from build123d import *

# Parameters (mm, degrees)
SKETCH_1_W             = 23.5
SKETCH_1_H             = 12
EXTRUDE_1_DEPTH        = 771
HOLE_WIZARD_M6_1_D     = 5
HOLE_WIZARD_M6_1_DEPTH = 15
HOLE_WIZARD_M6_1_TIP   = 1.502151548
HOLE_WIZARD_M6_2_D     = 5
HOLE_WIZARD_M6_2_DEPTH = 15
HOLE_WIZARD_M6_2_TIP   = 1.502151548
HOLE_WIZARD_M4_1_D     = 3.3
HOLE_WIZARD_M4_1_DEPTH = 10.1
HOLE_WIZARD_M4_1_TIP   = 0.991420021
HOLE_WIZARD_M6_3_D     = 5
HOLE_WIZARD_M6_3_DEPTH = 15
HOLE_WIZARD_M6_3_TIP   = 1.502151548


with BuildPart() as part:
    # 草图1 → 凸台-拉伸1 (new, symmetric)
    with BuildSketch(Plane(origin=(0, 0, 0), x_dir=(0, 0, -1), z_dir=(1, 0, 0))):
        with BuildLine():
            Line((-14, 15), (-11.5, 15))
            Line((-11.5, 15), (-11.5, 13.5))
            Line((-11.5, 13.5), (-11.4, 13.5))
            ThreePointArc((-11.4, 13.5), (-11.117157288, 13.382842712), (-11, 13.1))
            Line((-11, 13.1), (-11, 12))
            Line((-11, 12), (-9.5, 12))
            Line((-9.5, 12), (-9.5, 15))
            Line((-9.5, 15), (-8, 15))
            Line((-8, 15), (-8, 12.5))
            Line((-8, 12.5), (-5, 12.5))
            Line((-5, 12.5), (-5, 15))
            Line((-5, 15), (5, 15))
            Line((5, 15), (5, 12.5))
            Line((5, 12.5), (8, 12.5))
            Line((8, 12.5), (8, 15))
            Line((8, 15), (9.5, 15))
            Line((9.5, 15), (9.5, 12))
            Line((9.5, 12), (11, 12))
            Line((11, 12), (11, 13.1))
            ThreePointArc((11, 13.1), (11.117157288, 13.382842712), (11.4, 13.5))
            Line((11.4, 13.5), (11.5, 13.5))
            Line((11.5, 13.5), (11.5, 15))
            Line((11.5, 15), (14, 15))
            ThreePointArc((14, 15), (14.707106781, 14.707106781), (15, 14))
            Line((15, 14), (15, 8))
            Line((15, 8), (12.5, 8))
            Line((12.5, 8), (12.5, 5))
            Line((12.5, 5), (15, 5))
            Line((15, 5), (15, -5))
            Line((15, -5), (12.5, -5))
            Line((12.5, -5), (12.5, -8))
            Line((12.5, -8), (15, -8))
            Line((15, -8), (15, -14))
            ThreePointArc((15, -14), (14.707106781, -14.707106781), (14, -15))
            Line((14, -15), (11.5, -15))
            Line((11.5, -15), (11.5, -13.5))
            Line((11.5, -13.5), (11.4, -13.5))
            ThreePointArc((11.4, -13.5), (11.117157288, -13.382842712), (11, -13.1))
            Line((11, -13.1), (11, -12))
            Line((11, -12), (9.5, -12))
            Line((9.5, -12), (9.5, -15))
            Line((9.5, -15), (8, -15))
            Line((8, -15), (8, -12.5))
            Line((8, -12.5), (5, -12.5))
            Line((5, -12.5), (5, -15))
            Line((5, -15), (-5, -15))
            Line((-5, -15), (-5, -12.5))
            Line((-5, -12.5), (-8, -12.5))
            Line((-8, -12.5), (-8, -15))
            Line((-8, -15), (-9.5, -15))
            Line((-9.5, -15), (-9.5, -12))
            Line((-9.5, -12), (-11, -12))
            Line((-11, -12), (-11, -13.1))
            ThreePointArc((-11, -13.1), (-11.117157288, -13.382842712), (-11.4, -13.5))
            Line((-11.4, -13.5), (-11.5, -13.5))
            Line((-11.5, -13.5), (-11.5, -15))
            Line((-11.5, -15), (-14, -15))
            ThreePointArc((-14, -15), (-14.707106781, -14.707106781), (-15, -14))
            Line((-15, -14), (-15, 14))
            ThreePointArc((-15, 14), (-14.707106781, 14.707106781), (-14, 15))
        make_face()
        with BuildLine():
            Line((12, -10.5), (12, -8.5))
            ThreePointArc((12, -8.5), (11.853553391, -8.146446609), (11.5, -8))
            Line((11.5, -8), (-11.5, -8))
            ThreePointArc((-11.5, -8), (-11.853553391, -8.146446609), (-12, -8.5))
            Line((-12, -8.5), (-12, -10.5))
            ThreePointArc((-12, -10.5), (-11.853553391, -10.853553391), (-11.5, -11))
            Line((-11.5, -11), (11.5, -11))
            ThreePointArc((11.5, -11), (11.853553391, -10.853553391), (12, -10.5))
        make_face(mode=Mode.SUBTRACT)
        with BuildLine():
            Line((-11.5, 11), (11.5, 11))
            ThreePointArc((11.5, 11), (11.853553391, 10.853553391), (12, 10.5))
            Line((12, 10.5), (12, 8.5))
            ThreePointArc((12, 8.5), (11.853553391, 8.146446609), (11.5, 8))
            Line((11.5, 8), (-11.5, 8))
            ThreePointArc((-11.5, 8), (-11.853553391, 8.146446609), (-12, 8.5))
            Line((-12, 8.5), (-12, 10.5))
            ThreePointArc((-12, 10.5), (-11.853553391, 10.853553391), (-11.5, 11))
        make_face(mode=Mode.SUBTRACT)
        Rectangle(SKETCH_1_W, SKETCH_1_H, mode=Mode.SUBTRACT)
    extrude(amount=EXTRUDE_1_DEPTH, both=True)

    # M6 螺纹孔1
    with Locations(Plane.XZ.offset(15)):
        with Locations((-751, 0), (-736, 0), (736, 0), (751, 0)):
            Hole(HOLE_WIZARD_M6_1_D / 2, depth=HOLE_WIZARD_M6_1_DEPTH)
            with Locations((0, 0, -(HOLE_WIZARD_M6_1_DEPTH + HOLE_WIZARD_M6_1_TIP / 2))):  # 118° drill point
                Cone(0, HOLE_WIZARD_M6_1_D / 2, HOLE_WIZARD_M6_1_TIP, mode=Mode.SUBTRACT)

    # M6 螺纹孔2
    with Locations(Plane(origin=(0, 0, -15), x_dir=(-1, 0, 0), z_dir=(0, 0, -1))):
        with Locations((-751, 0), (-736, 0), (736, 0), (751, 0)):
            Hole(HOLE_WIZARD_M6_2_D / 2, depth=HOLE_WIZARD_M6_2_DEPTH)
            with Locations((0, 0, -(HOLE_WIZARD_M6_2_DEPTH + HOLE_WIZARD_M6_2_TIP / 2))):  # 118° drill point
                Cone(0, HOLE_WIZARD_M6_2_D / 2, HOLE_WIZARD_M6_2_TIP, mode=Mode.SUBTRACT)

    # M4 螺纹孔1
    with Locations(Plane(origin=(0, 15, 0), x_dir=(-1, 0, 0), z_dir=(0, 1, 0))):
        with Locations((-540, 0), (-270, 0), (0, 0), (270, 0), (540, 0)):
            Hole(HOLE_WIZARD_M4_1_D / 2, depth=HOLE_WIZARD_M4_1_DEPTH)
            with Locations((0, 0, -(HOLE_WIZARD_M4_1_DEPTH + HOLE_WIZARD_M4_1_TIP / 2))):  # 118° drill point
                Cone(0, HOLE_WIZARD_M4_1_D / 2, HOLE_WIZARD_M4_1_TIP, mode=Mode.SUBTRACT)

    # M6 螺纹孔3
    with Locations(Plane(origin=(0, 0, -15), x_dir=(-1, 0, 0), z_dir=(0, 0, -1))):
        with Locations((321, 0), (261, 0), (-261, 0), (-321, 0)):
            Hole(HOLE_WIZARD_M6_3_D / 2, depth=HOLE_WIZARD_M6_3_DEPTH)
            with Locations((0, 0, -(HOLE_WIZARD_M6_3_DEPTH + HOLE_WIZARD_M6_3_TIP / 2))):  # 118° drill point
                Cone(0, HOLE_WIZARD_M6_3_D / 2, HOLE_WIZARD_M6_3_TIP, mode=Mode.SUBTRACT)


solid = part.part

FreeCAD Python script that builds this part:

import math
import FreeCAD as App
import Part
import Sketcher
from FreeCAD import Vector


def add_polygon(sketch, points):
    """Adds a closed chain of lines whose ends are joined by coincident constraints."""
    first, n = sketch.GeometryCount, len(points)
    for a, b in zip(points, points[1:] + points[:1]):
        sketch.addGeometry(Part.LineSegment(App.Vector(*a, 0), App.Vector(*b, 0)), False)
    for i in range(n):
        sketch.addConstraint(Sketcher.Constraint("Coincident", first + i, 2, first + (i + 1) % n, 1))

doc = App.newDocument("Part")
params = doc.addObject("Spreadsheet::Sheet", "Params")
for row, (alias, value) in enumerate([
    ("sketch1_radius", "1 mm"),
    ("sketch1_radius2", "0.4 mm"),
    ("sketch1_radius3", "0.5 mm"),
    ("sketch1_width", "28 mm"),
    ("sketch1_width2", "3 mm"),
    ("pad1_length", "1542 mm"),
    ("sketch2_diameter", "5 mm"),
    ("hole_diameter", "5 mm"),
    ("hole_depth", "15 mm"),
    ("sketch3_diameter", "5 mm"),
    ("hole2_diameter", "5 mm"),
    ("hole2_depth", "15 mm"),
    ("sketch4_diameter", "3.3 mm"),
    ("hole3_diameter", "3.3 mm"),
    ("hole3_depth", "10.1 mm"),
    ("sketch5_diameter", "5 mm"),
    ("hole4_diameter", "5 mm"),
    ("hole4_depth", "15 mm"),
], start=1):
    params.set(f"A{row}", alias)
    params.set(f"B{row}", "=" + value)
    params.setAlias(f"B{row}", alias)

body = doc.addObject("PartDesign::Body", "Body")

# Sketch on YZ plane
sketch1 = doc.addObject("Sketcher::SketchObject", "Sketch")
body.addObject(sketch1)
sketch1.AttachmentSupport = (doc.YZ_Plane, [""])
sketch1.MapMode = "FlatFace"
sketch1.addGeometry(Part.LineSegment(Vector(15, 11.5, 0), Vector(15, 14, 0)), False)  # 0
sketch1.addGeometry(Part.ArcOfCircle(Part.Circle(Vector(14, 14, 0), Vector(0, 0, 1), 1), math.radians(0), math.radians(90)), False)  # 1
sketch1.addGeometry(Part.LineSegment(Vector(14, 15, 0), Vector(-14, 15, 0)), False)  # 2
sketch1.addGeometry(Part.ArcOfCircle(Part.Circle(Vector(-14, 14, 0), Vector(0, 0, 1), 1), math.radians(90), math.radians(180)), False)  # 3
sketch1.addGeometry(Part.LineSegment(Vector(-15, 14, 0), Vector(-15, 11.5, 0)), False)  # 4
sketch1.addGeometry(Part.LineSegment(Vector(-15, 11.5, 0), Vector(-13.5, 11.5, 0)), False)  # 5
sketch1.addGeometry(Part.LineSegment(Vector(-13.5, 11.5, 0), Vector(-13.5, 11.4, 0)), False)  # 6
sketch1.addGeometry(Part.ArcOfCircle(Part.Circle(Vector(-13.1, 11.4, 0), Vector(0, 0, 1), 0.4), math.radians(-180), math.radians(-90)), False)  # 7
sketch1.addGeometry(Part.LineSegment(Vector(-13.1, 11, 0), Vector(-12, 11, 0)), False)  # 8
sketch1.addGeometry(Part.LineSegment(Vector(-12, 11, 0), Vector(-12, 9.5, 0)), False)  # 9
sketch1.addGeometry(Part.LineSegment(Vector(-12, 9.5, 0), Vector(-15, 9.5, 0)), False)  # 10
sketch1.addGeometry(Part.LineSegment(Vector(-15, 9.5, 0), Vector(-15, 8, 0)), False)  # 11
sketch1.addGeometry(Part.LineSegment(Vector(-15, 8, 0), Vector(-12.5, 8, 0)), False)  # 12
sketch1.addGeometry(Part.LineSegment(Vector(-12.5, 8, 0), Vector(-12.5, 5, 0)), False)  # 13
sketch1.addGeometry(Part.LineSegment(Vector(-12.5, 5, 0), Vector(-15, 5, 0)), False)  # 14
sketch1.addGeometry(Part.LineSegment(Vector(-15, 5, 0), Vector(-15, -5, 0)), False)  # 15
sketch1.addGeometry(Part.LineSegment(Vector(-15, -5, 0), Vector(-12.5, -5, 0)), False)  # 16
sketch1.addGeometry(Part.LineSegment(Vector(-12.5, -5, 0), Vector(-12.5, -8, 0)), False)  # 17
sketch1.addGeometry(Part.LineSegment(Vector(-12.5, -8, 0), Vector(-15, -8, 0)), False)  # 18
sketch1.addGeometry(Part.LineSegment(Vector(-15, -8, 0), Vector(-15, -9.5, 0)), False)  # 19
sketch1.addGeometry(Part.LineSegment(Vector(-15, -9.5, 0), Vector(-12, -9.5, 0)), False)  # 20
sketch1.addGeometry(Part.LineSegment(Vector(-12, -9.5, 0), Vector(-12, -11, 0)), False)  # 21
sketch1.addGeometry(Part.LineSegment(Vector(-12, -11, 0), Vector(-13.1, -11, 0)), False)  # 22
sketch1.addGeometry(Part.ArcOfCircle(Part.Circle(Vector(-13.1, -11.4, 0), Vector(0, 0, 1), 0.4), math.radians(90), math.radians(180)), False)  # 23
sketch1.addGeometry(Part.LineSegment(Vector(-13.5, -11.4, 0), Vector(-13.5, -11.5, 0)), False)  # 24
sketch1.addGeometry(Part.LineSegment(Vector(-13.5, -11.5, 0), Vector(-15, -11.5, 0)), False)  # 25
sketch1.addGeometry(Part.LineSegment(Vector(-15, -11.5, 0), Vector(-15, -14, 0)), False)  # 26
sketch1.addGeometry(Part.ArcOfCircle(Part.Circle(Vector(-14, -14, 0), Vector(0, 0, 1), 1), math.radians(-180), math.radians(-90)), False)  # 27
sketch1.addGeometry(Part.LineSegment(Vector(-14, -15, 0), Vector(-8, -15, 0)), False)  # 28
sketch1.addGeometry(Part.LineSegment(Vector(-8, -15, 0), Vector(-8, -12.5, 0)), False)  # 29
sketch1.addGeometry(Part.LineSegment(Vector(-8, -12.5, 0), Vector(-5, -12.5, 0)), False)  # 30
sketch1.addGeometry(Part.LineSegment(Vector(-5, -12.5, 0), Vector(-5, -15, 0)), False)  # 31
sketch1.addGeometry(Part.LineSegment(Vector(-5, -15, 0), Vector(5, -15, 0)), False)  # 32
sketch1.addGeometry(Part.LineSegment(Vector(5, -15, 0), Vector(5, -12.5, 0)), False)  # 33
sketch1.addGeometry(Part.LineSegment(Vector(5, -12.5, 0), Vector(8, -12.5, 0)), False)  # 34
sketch1.addGeometry(Part.LineSegment(Vector(8, -12.5, 0), Vector(8, -15, 0)), False)  # 35
sketch1.addGeometry(Part.LineSegment(Vector(8, -15, 0), Vector(14, -15, 0)), False)  # 36
sketch1.addGeometry(Part.ArcOfCircle(Part.Circle(Vector(14, -14, 0), Vector(0, 0, 1), 1), math.radians(-90), math.radians(0)), False)  # 37
sketch1.addGeometry(Part.LineSegment(Vector(15, -14, 0), Vector(15, -11.5, 0)), False)  # 38
sketch1.addGeometry(Part.LineSegment(Vector(15, -11.5, 0), Vector(13.5, -11.5, 0)), False)  # 39
sketch1.addGeometry(Part.LineSegment(Vector(13.5, -11.5, 0), Vector(13.5, -11.4, 0)), False)  # 40
sketch1.addGeometry(Part.ArcOfCircle(Part.Circle(Vector(13.1, -11.4, 0), Vector(0, 0, 1), 0.4), math.radians(0), math.radians(90)), False)  # 41
sketch1.addGeometry(Part.LineSegment(Vector(13.1, -11, 0), Vector(12, -11, 0)), False)  # 42
sketch1.addGeometry(Part.LineSegment(Vector(12, -11, 0), Vector(12, -9.5, 0)), False)  # 43
sketch1.addGeometry(Part.LineSegment(Vector(12, -9.5, 0), Vector(15, -9.5, 0)), False)  # 44
sketch1.addGeometry(Part.LineSegment(Vector(15, -9.5, 0), Vector(15, -8, 0)), False)  # 45
sketch1.addGeometry(Part.LineSegment(Vector(15, -8, 0), Vector(12.5, -8, 0)), False)  # 46
sketch1.addGeometry(Part.LineSegment(Vector(12.5, -8, 0), Vector(12.5, -5, 0)), False)  # 47
sketch1.addGeometry(Part.LineSegment(Vector(12.5, -5, 0), Vector(15, -5, 0)), False)  # 48
sketch1.addGeometry(Part.LineSegment(Vector(15, -5, 0), Vector(15, 5, 0)), False)  # 49
sketch1.addGeometry(Part.LineSegment(Vector(15, 5, 0), Vector(12.5, 5, 0)), False)  # 50
sketch1.addGeometry(Part.LineSegment(Vector(12.5, 5, 0), Vector(12.5, 8, 0)), False)  # 51
sketch1.addGeometry(Part.LineSegment(Vector(12.5, 8, 0), Vector(15, 8, 0)), False)  # 52
sketch1.addGeometry(Part.LineSegment(Vector(15, 8, 0), Vector(15, 9.5, 0)), False)  # 53
sketch1.addGeometry(Part.LineSegment(Vector(15, 9.5, 0), Vector(12, 9.5, 0)), False)  # 54
sketch1.addGeometry(Part.LineSegment(Vector(12, 9.5, 0), Vector(12, 11, 0)), False)  # 55
sketch1.addGeometry(Part.LineSegment(Vector(12, 11, 0), Vector(13.1, 11, 0)), False)  # 56
sketch1.addGeometry(Part.ArcOfCircle(Part.Circle(Vector(13.1, 11.4, 0), Vector(0, 0, 1), 0.4), math.radians(-90), math.radians(0)), False)  # 57
sketch1.addGeometry(Part.LineSegment(Vector(13.5, 11.4, 0), Vector(13.5, 11.5, 0)), False)  # 58
sketch1.addGeometry(Part.LineSegment(Vector(13.5, 11.5, 0), Vector(15, 11.5, 0)), False)  # 59
sketch1.addGeometry(Part.ArcOfCircle(Part.Circle(Vector(-10.5, -11.5, 0), Vector(0, 0, 1), 0.5), math.radians(180), math.radians(270)), False)  # 60
sketch1.addGeometry(Part.LineSegment(Vector(-11, -11.5, 0), Vector(-11, 11.5, 0)), False)  # 61
sketch1.addGeometry(Part.ArcOfCircle(Part.Circle(Vector(-10.5, 11.5, 0), Vector(0, 0, 1), 0.5), math.radians(90), math.radians(180)), False)  # 62
sketch1.addGeometry(Part.LineSegment(Vector(-10.5, 12, 0), Vector(-8.5, 12, 0)), False)  # 63
sketch1.addGeometry(Part.ArcOfCircle(Part.Circle(Vector(-8.5, 11.5, 0), Vector(0, 0, 1), 0.5), math.radians(0), math.radians(90)), False)  # 64
sketch1.addGeometry(Part.LineSegment(Vector(-8, 11.5, 0), Vector(-8, -11.5, 0)), False)  # 65
sketch1.addGeometry(Part.ArcOfCircle(Part.Circle(Vector(-8.5, -11.5, 0), Vector(0, 0, 1), 0.5), math.radians(-90), math.radians(0)), False)  # 66
sketch1.addGeometry(Part.LineSegment(Vector(-8.5, -12, 0), Vector(-10.5, -12, 0)), False)  # 67
add_polygon(sketch1, [(-6, 11.75), (6, 11.75), (6, -11.75), (-6, -11.75)])  # lines 68-71
sketch1.addGeometry(Part.LineSegment(Vector(11, 11.5, 0), Vector(11, -11.5, 0)), False)  # 72
sketch1.addGeometry(Part.ArcOfCircle(Part.Circle(Vector(10.5, -11.5, 0), Vector(0, 0, 1), 0.5), math.radians(-90), math.radians(0)), False)  # 73
sketch1.addGeometry(Part.LineSegment(Vector(10.5, -12, 0), Vector(8.5, -12, 0)), False)  # 74
sketch1.addGeometry(Part.ArcOfCircle(Part.Circle(Vector(8.5, -11.5, 0), Vector(0, 0, 1), 0.5), math.radians(180), math.radians(270)), False)  # 75
sketch1.addGeometry(Part.LineSegment(Vector(8, -11.5, 0), Vector(8, 11.5, 0)), False)  # 76
sketch1.addGeometry(Part.ArcOfCircle(Part.Circle(Vector(8.5, 11.5, 0), Vector(0, 0, 1), 0.5), math.radians(90), math.radians(180)), False)  # 77
sketch1.addGeometry(Part.LineSegment(Vector(8.5, 12, 0), Vector(10.5, 12, 0)), False)  # 78
sketch1.addGeometry(Part.ArcOfCircle(Part.Circle(Vector(10.5, 11.5, 0), Vector(0, 0, 1), 0.5), math.radians(0), math.radians(90)), False)  # 79
sketch1.addConstraint([
    Sketcher.Constraint("Tangent", 0, 2, 1, 1),
    Sketcher.Constraint("Tangent", 1, 2, 2, 1),
    Sketcher.Constraint("Tangent", 2, 2, 3, 1),
    Sketcher.Constraint("Tangent", 3, 2, 4, 1),
    Sketcher.Constraint("Coincident", 4, 2, 5, 1),
    Sketcher.Constraint("Coincident", 5, 2, 6, 1),
    Sketcher.Constraint("Tangent", 6, 2, 7, 1),
    Sketcher.Constraint("Tangent", 7, 2, 8, 1),
    Sketcher.Constraint("Coincident", 8, 2, 9, 1),
    Sketcher.Constraint("Coincident", 9, 2, 10, 1),
    Sketcher.Constraint("Coincident", 10, 2, 11, 1),
    Sketcher.Constraint("Coincident", 11, 2, 12, 1),
    Sketcher.Constraint("Coincident", 12, 2, 13, 1),
    Sketcher.Constraint("Coincident", 13, 2, 14, 1),
    Sketcher.Constraint("Coincident", 14, 2, 15, 1),
    Sketcher.Constraint("Coincident", 15, 2, 16, 1),
    Sketcher.Constraint("Coincident", 16, 2, 17, 1),
    Sketcher.Constraint("Coincident", 17, 2, 18, 1),
    Sketcher.Constraint("Coincident", 18, 2, 19, 1),
    Sketcher.Constraint("Coincident", 19, 2, 20, 1),
    Sketcher.Constraint("Coincident", 20, 2, 21, 1),
    Sketcher.Constraint("Coincident", 21, 2, 22, 1),
    Sketcher.Constraint("Tangent", 22, 2, 23, 1),
    Sketcher.Constraint("Tangent", 23, 2, 24, 1),
    Sketcher.Constraint("Coincident", 24, 2, 25, 1),
    Sketcher.Constraint("Coincident", 25, 2, 26, 1),
    Sketcher.Constraint("Tangent", 26, 2, 27, 1),
    Sketcher.Constraint("Tangent", 27, 2, 28, 1),
    Sketcher.Constraint("Coincident", 28, 2, 29, 1),
    Sketcher.Constraint("Coincident", 29, 2, 30, 1),
    Sketcher.Constraint("Coincident", 30, 2, 31, 1),
    Sketcher.Constraint("Coincident", 31, 2, 32, 1),
    Sketcher.Constraint("Coincident", 32, 2, 33, 1),
    Sketcher.Constraint("Coincident", 33, 2, 34, 1),
    Sketcher.Constraint("Coincident", 34, 2, 35, 1),
    Sketcher.Constraint("Coincident", 35, 2, 36, 1),
    Sketcher.Constraint("Tangent", 36, 2, 37, 1),
    Sketcher.Constraint("Tangent", 37, 2, 38, 1),
    Sketcher.Constraint("Coincident", 38, 2, 39, 1),
    Sketcher.Constraint("Coincident", 39, 2, 40, 1),
    Sketcher.Constraint("Tangent", 40, 2, 41, 1),
    Sketcher.Constraint("Tangent", 41, 2, 42, 1),
    Sketcher.Constraint("Coincident", 42, 2, 43, 1),
    Sketcher.Constraint("Coincident", 43, 2, 44, 1),
    Sketcher.Constraint("Coincident", 44, 2, 45, 1),
    Sketcher.Constraint("Coincident", 45, 2, 46, 1),
    Sketcher.Constraint("Coincident", 46, 2, 47, 1),
    Sketcher.Constraint("Coincident", 47, 2, 48, 1),
    Sketcher.Constraint("Coincident", 48, 2, 49, 1),
    Sketcher.Constraint("Coincident", 49, 2, 50, 1),
    Sketcher.Constraint("Coincident", 50, 2, 51, 1),
    Sketcher.Constraint("Coincident", 51, 2, 52, 1),
    Sketcher.Constraint("Coincident", 52, 2, 53, 1),
    Sketcher.Constraint("Coincident", 53, 2, 54, 1),
    Sketcher.Constraint("Coincident", 54, 2, 55, 1),
    Sketcher.Constraint("Coincident", 55, 2, 56, 1),
    Sketcher.Constraint("Tangent", 56, 2, 57, 1),
    Sketcher.Constraint("Tangent", 57, 2, 58, 1),
    Sketcher.Constraint("Coincident", 58, 2, 59, 1),
    Sketcher.Constraint("Coincident", 59, 2, 0, 1),
    Sketcher.Constraint("Tangent", 60, 1, 61, 1),
    Sketcher.Constraint("Tangent", 61, 2, 62, 2),
    Sketcher.Constraint("Tangent", 62, 1, 63, 1),
    Sketcher.Constraint("Tangent", 63, 2, 64, 2),
    Sketcher.Constraint("Tangent", 64, 1, 65, 1),
    Sketcher.Constraint("Tangent", 65, 2, 66, 2),
    Sketcher.Constraint("Tangent", 66, 1, 67, 1),
    Sketcher.Constraint("Tangent", 67, 2, 60, 2),
    Sketcher.Constraint("Tangent", 72, 2, 73, 2),
    Sketcher.Constraint("Tangent", 73, 1, 74, 1),
    Sketcher.Constraint("Tangent", 74, 2, 75, 2),
    Sketcher.Constraint("Tangent", 75, 1, 76, 1),
    Sketcher.Constraint("Tangent", 76, 2, 77, 2),
    Sketcher.Constraint("Tangent", 77, 1, 78, 1),
    Sketcher.Constraint("Tangent", 78, 2, 79, 2),
    Sketcher.Constraint("Tangent", 79, 1, 72, 1),
    Sketcher.Constraint("Vertical", 0),
    Sketcher.Constraint("Horizontal", 2),
    Sketcher.Constraint("Vertical", 4),
    Sketcher.Constraint("Horizontal", 5),
    Sketcher.Constraint("Vertical", 6),
    Sketcher.Constraint("Horizontal", 8),
    Sketcher.Constraint("Vertical", 9),
    Sketcher.Constraint("Horizontal", 10),
    Sketcher.Constraint("Vertical", 11),
    Sketcher.Constraint("Horizontal", 12),
    Sketcher.Constraint("Vertical", 13),
    Sketcher.Constraint("Horizontal", 14),
    Sketcher.Constraint("Vertical", 15),
    Sketcher.Constraint("Horizontal", 16),
    Sketcher.Constraint("Vertical", 17),
    Sketcher.Constraint("Horizontal", 18),
    Sketcher.Constraint("Vertical", 19),
    Sketcher.Constraint("Horizontal", 20),
    Sketcher.Constraint("Vertical", 21),
    Sketcher.Constraint("Horizontal", 22),
    Sketcher.Constraint("Vertical", 24),
    Sketcher.Constraint("Horizontal", 25),
    Sketcher.Constraint("Vertical", 26),
    Sketcher.Constraint("Horizontal", 28),
    Sketcher.Constraint("Vertical", 29),
    Sketcher.Constraint("Horizontal", 30),
    Sketcher.Constraint("Vertical", 31),
    Sketcher.Constraint("Horizontal", 32),
    Sketcher.Constraint("Vertical", 33),
    Sketcher.Constraint("Horizontal", 34),
    Sketcher.Constraint("Vertical", 35),
    Sketcher.Constraint("Horizontal", 36),
    Sketcher.Constraint("Vertical", 38),
    Sketcher.Constraint("Horizontal", 39),
    Sketcher.Constraint("Vertical", 40),
    Sketcher.Constraint("Horizontal", 42),
    Sketcher.Constraint("Vertical", 43),
    Sketcher.Constraint("Horizontal", 44),
    Sketcher.Constraint("Vertical", 45),
    Sketcher.Constraint("Horizontal", 46),
    Sketcher.Constraint("Vertical", 47),
    Sketcher.Constraint("Horizontal", 48),
    Sketcher.Constraint("Vertical", 49),
    Sketcher.Constraint("Horizontal", 50),
    Sketcher.Constraint("Vertical", 51),
    Sketcher.Constraint("Horizontal", 52),
    Sketcher.Constraint("Vertical", 53),
    Sketcher.Constraint("Horizontal", 54),
    Sketcher.Constraint("Vertical", 55),
    Sketcher.Constraint("Horizontal", 56),
    Sketcher.Constraint("Vertical", 58),
    Sketcher.Constraint("Horizontal", 59),
    Sketcher.Constraint("Vertical", 61),
    Sketcher.Constraint("Horizontal", 63),
    Sketcher.Constraint("Vertical", 65),
    Sketcher.Constraint("Horizontal", 67),
    Sketcher.Constraint("Horizontal", 68),
    Sketcher.Constraint("Vertical", 69),
    Sketcher.Constraint("Horizontal", 70),
    Sketcher.Constraint("Vertical", 71),
    Sketcher.Constraint("Vertical", 72),
    Sketcher.Constraint("Horizontal", 74),
    Sketcher.Constraint("Vertical", 76),
    Sketcher.Constraint("Horizontal", 78),
    Sketcher.Constraint("Equal", 1, 3),
    Sketcher.Constraint("Equal", 7, 23),
    Sketcher.Constraint("Equal", 3, 27),
    Sketcher.Constraint("Equal", 27, 37),
    Sketcher.Constraint("Equal", 23, 41),
    Sketcher.Constraint("Equal", 41, 57),
    Sketcher.Constraint("Equal", 60, 62),
    Sketcher.Constraint("Equal", 62, 64),
    Sketcher.Constraint("Equal", 64, 66),
    Sketcher.Constraint("Equal", 66, 73),
    Sketcher.Constraint("Equal", 73, 75),
    Sketcher.Constraint("Equal", 75, 77),
    Sketcher.Constraint("Equal", 77, 79),
    Sketcher.Constraint("Symmetric", 1, 3, 27, 3, -1, 1),
    Sketcher.Constraint("Symmetric", 3, 3, 37, 3, -1, 1),
    Sketcher.Constraint("Symmetric", 7, 3, 41, 3, -1, 1),
    Sketcher.Constraint("Symmetric", 23, 3, 57, 3, -1, 1),
    Sketcher.Constraint("Symmetric", 62, 3, 73, 3, -1, 1),
    Sketcher.Constraint("Symmetric", 66, 3, 77, 3, -1, 1),
    Sketcher.Constraint("Symmetric", 9, 2, 43, 2, -1, 1),
    Sketcher.Constraint("Symmetric", 11, 2, 45, 2, -1, 1),
    Sketcher.Constraint("Symmetric", 13, 2, 47, 2, -1, 1),
    Sketcher.Constraint("Symmetric", 15, 2, 49, 2, -1, 1),
    Sketcher.Constraint("Symmetric", 17, 2, 51, 2, -1, 1),
    Sketcher.Constraint("Symmetric", 19, 2, 53, 2, -1, 1),
    Sketcher.Constraint("Symmetric", 68, 2, 70, 2, -1, 1),
    Sketcher.Constraint("Symmetric", 23, 3, 41, 3, -2),
    Sketcher.Constraint("Symmetric", 30, 2, 33, 2, -2),
    Sketcher.Constraint("Symmetric", 25, 2, 38, 2, -2),
    Sketcher.Constraint("Symmetric", 20, 2, 43, 2, -2),
    Sketcher.Constraint("Symmetric", 18, 2, 45, 2, -2),
    Sketcher.Constraint("Symmetric", 16, 2, 47, 2, -2),
    Sketcher.Constraint("Horizontal", 66, 3, 73, 3),
    Sketcher.Constraint("Horizontal", 79, 3, 4, 2),
    Sketcher.Constraint("Horizontal", 75, 3, 24, 2),
    Sketcher.Constraint("Horizontal", 28, 2, 31, 2),
    Sketcher.Constraint("Horizontal", 5, 2, 58, 2),
    Sketcher.Constraint("Vertical", 4, 2, 10, 2),
    Sketcher.Constraint("Vertical", 11, 2, 14, 2),
    Sketcher.Constraint("Vertical", 43, 2, 54, 2),
    Sketcher.Constraint("Vertical", 29, 2, 64, 1),
    Sketcher.Constraint("Vertical", 35, 2, 75, 1),
    Sketcher.Constraint("Equal", 20, 30),
    Sketcher.Constraint("Equal", 52, 0),
    Sketcher.Constraint("Equal", 59, 9),
    Sketcher.Constraint("Equal", 9, 11),
    Sketcher.Constraint("Equal", 54, 13),
    Sketcher.Constraint("Equal", 32, 15),
    Sketcher.Constraint("Equal", 26, 29),
    Sketcher.Constraint("Radius", 1, 1.0),
    Sketcher.Constraint("Radius", 7, 0.4),
    Sketcher.Constraint("Radius", 60, 0.5),
    Sketcher.Constraint("DistanceX", 2, 2, 2, 1, 28.0),
    Sketcher.Constraint("DistanceX", 10, 2, 10, 1, 3.0),
    Sketcher.Constraint("DistanceX", 28, 1, 28, 2, 6.0),
    Sketcher.Constraint("DistanceX", 63, 1, 63, 2, 2.0),
    Sketcher.Constraint("DistanceX", 68, 1, 68, 2, 12.0),
    Sketcher.Constraint("DistanceY", 61, 1, 61, 2, 23.0),
    Sketcher.Constraint("DistanceX", 5, 1, 5, 2, 1.5),
    Sketcher.Constraint("DistanceX", 12, 1, 12, 2, 2.5),
    Sketcher.Constraint("DistanceY", 69, 2, 69, 1, 23.5),
])
sketch1.setExpression("Constraints[193]", "Params.sketch1_radius")
sketch1.setExpression("Constraints[194]", "Params.sketch1_radius2")
sketch1.setExpression("Constraints[195]", "Params.sketch1_radius3")
sketch1.setExpression("Constraints[196]", "Params.sketch1_width")
sketch1.setExpression("Constraints[197]", "Params.sketch1_width2")
pad1 = doc.addObject("PartDesign::Pad", "Pad")
body.addObject(pad1)
pad1.Profile = sketch1
pad1.setExpression("Length", "Params.pad1_length")
pad1.Midplane = True

# Sketch on XZ plane
sketch2 = doc.addObject("Sketcher::SketchObject", "Sketch001")
body.addObject(sketch2)
sketch2.AttachmentSupport = (doc.XZ_Plane, [""])
sketch2.MapMode = "FlatFace"
sketch2.AttachmentOffset = App.Placement(Vector(0, 0, 15), App.Rotation())
sketch2.addGeometry([
    Part.Circle(Vector(-751, 0, 0), Vector(0, 0, 1), 2.5),
    Part.Circle(Vector(-736, 0, 0), Vector(0, 0, 1), 2.5),
    Part.Circle(Vector(736, 0, 0), Vector(0, 0, 1), 2.5),
    Part.Circle(Vector(751, 0, 0), Vector(0, 0, 1), 2.5),
], False)
sketch2.addConstraint([
    Sketcher.Constraint("Equal", 0, 1),
    Sketcher.Constraint("Equal", 1, 2),
    Sketcher.Constraint("Equal", 2, 3),
    Sketcher.Constraint("Symmetric", 1, 3, 2, 3, -1, 1),
    Sketcher.Constraint("Symmetric", 0, 3, 3, 3, -1, 1),
    Sketcher.Constraint("PointOnObject", 0, 3, -1),
    Sketcher.Constraint("PointOnObject", 1, 3, -1),
    Sketcher.Constraint("Diameter", 0, 5.0),
    Sketcher.Constraint("DistanceX", 0, 3, -1, 1, 751.0),
    Sketcher.Constraint("DistanceX", 1, 3, -1, 1, 736.0),
])
sketch2.setExpression("Constraints[7]", "Params.sketch2_diameter")
doc.recompute()
hole = doc.addObject("PartDesign::Hole", "Hole")
body.addObject(hole)
hole.Profile = sketch2
hole.ThreadType = "None"
hole.setExpression("Diameter", "Params.hole_diameter")
hole.DepthType = "Dimension"
hole.setExpression("Depth", "Params.hole_depth")
hole.DrillPoint = "Angled"
hole.DrillPointAngle = 118

# Sketch on XY plane
sketch3 = doc.addObject("Sketcher::SketchObject", "Sketch002")
body.addObject(sketch3)
sketch3.AttachmentSupport = (doc.XY_Plane, [""])
sketch3.MapMode = "FlatFace"
sketch3.AttachmentOffset = App.Placement(Vector(0, 0, -15), App.Rotation())
sketch3.addGeometry([
    Part.Circle(Vector(751, 0, 0), Vector(0, 0, 1), 2.5),
    Part.Circle(Vector(736, 0, 0), Vector(0, 0, 1), 2.5),
    Part.Circle(Vector(-736, 0, 0), Vector(0, 0, 1), 2.5),
    Part.Circle(Vector(-751, 0, 0), Vector(0, 0, 1), 2.5),
], False)
sketch3.addConstraint([
    Sketcher.Constraint("Equal", 0, 1),
    Sketcher.Constraint("Equal", 1, 2),
    Sketcher.Constraint("Equal", 2, 3),
    Sketcher.Constraint("Symmetric", 1, 3, 2, 3, -1, 1),
    Sketcher.Constraint("Symmetric", 0, 3, 3, 3, -1, 1),
    Sketcher.Constraint("PointOnObject", 0, 3, -1),
    Sketcher.Constraint("PointOnObject", 1, 3, -1),
    Sketcher.Constraint("Diameter", 0, 5.0),
    Sketcher.Constraint("DistanceX", -1, 1, 0, 3, 751.0),
    Sketcher.Constraint("DistanceX", -1, 1, 1, 3, 736.0),
])
sketch3.setExpression("Constraints[7]", "Params.sketch3_diameter")
doc.recompute()
hole2 = doc.addObject("PartDesign::Hole", "Hole001")
body.addObject(hole2)
hole2.Profile = sketch3
hole2.ThreadType = "None"
hole2.setExpression("Diameter", "Params.hole2_diameter")
hole2.DepthType = "Dimension"
hole2.setExpression("Depth", "Params.hole2_depth")
hole2.DrillPoint = "Angled"
hole2.DrillPointAngle = 118
hole2.Reversed = True

# Sketch on XZ plane
sketch4 = doc.addObject("Sketcher::SketchObject", "Sketch003")
body.addObject(sketch4)
sketch4.AttachmentSupport = (doc.XZ_Plane, [""])
sketch4.MapMode = "FlatFace"
sketch4.AttachmentOffset = App.Placement(Vector(0, 0, -15), App.Rotation())
sketch4.addGeometry([
    Part.Circle(Vector(540, 0, 0), Vector(0, 0, 1), 1.65),  # 0
    Part.Circle(Vector(270, 0, 0), Vector(0, 0, 1), 1.65),  # 1
    Part.Circle(Vector(0, 0, 0), Vector(0, 0, 1), 1.65),  # 2
    Part.Circle(Vector(-270, 0, 0), Vector(0, 0, 1), 1.65),  # 3
    Part.Circle(Vector(-540, 0, 0), Vector(0, 0, 1), 1.65),  # 4
], False)
sketch4.addConstraint([
    Sketcher.Constraint("Coincident", 2, 3, -1, 1),
    Sketcher.Constraint("Equal", 0, 1),
    Sketcher.Constraint("Equal", 1, 2),
    Sketcher.Constraint("Equal", 2, 3),
    Sketcher.Constraint("Equal", 3, 4),
    Sketcher.Constraint("Symmetric", 1, 3, 3, 3, -1, 1),
    Sketcher.Constraint("Symmetric", 0, 3, 4, 3, -1, 1),
    Sketcher.Constraint("PointOnObject", 0, 3, -1),
    Sketcher.Constraint("PointOnObject", 1, 3, -1),
    Sketcher.Constraint("Diameter", 0, 3.3),
    Sketcher.Constraint("DistanceX", -1, 1, 0, 3, 540.0),
    Sketcher.Constraint("DistanceX", -1, 1, 1, 3, 270.0),
])
sketch4.setExpression("Constraints[9]", "Params.sketch4_diameter")
doc.recompute()
hole3 = doc.addObject("PartDesign::Hole", "Hole002")
body.addObject(hole3)
hole3.Profile = sketch4
hole3.ThreadType = "None"
hole3.setExpression("Diameter", "Params.hole3_diameter")
hole3.DepthType = "Dimension"
hole3.setExpression("Depth", "Params.hole3_depth")
hole3.DrillPoint = "Angled"
hole3.DrillPointAngle = 118
hole3.Reversed = True

# Sketch on XY plane
sketch5 = doc.addObject("Sketcher::SketchObject", "Sketch004")
body.addObject(sketch5)
sketch5.AttachmentSupport = (doc.XY_Plane, [""])
sketch5.MapMode = "FlatFace"
sketch5.AttachmentOffset = App.Placement(Vector(0, 0, -15), App.Rotation())
sketch5.addGeometry([
    Part.Circle(Vector(-321, 0, 0), Vector(0, 0, 1), 2.5),
    Part.Circle(Vector(-261, 0, 0), Vector(0, 0, 1), 2.5),
    Part.Circle(Vector(261, 0, 0), Vector(0, 0, 1), 2.5),
    Part.Circle(Vector(321, 0, 0), Vector(0, 0, 1), 2.5),
], False)
sketch5.addConstraint([
    Sketcher.Constraint("Equal", 0, 1),
    Sketcher.Constraint("Equal", 1, 2),
    Sketcher.Constraint("Equal", 2, 3),
    Sketcher.Constraint("Symmetric", 1, 3, 2, 3, -1, 1),
    Sketcher.Constraint("Symmetric", 0, 3, 3, 3, -1, 1),
    Sketcher.Constraint("PointOnObject", 0, 3, -1),
    Sketcher.Constraint("PointOnObject", 1, 3, -1),
    Sketcher.Constraint("Diameter", 0, 5.0),
    Sketcher.Constraint("DistanceX", 0, 3, -1, 1, 321.0),
    Sketcher.Constraint("DistanceX", 1, 3, -1, 1, 261.0),
])
sketch5.setExpression("Constraints[7]", "Params.sketch5_diameter")
doc.recompute()
hole4 = doc.addObject("PartDesign::Hole", "Hole003")
body.addObject(hole4)
hole4.Profile = sketch5
hole4.ThreadType = "None"
hole4.setExpression("Diameter", "Params.hole4_diameter")
hole4.DepthType = "Dimension"
hole4.setExpression("Depth", "Params.hole4_depth")
hole4.DrillPoint = "Angled"
hole4.DrillPointAngle = 118
hole4.Reversed = True

doc.recompute()
